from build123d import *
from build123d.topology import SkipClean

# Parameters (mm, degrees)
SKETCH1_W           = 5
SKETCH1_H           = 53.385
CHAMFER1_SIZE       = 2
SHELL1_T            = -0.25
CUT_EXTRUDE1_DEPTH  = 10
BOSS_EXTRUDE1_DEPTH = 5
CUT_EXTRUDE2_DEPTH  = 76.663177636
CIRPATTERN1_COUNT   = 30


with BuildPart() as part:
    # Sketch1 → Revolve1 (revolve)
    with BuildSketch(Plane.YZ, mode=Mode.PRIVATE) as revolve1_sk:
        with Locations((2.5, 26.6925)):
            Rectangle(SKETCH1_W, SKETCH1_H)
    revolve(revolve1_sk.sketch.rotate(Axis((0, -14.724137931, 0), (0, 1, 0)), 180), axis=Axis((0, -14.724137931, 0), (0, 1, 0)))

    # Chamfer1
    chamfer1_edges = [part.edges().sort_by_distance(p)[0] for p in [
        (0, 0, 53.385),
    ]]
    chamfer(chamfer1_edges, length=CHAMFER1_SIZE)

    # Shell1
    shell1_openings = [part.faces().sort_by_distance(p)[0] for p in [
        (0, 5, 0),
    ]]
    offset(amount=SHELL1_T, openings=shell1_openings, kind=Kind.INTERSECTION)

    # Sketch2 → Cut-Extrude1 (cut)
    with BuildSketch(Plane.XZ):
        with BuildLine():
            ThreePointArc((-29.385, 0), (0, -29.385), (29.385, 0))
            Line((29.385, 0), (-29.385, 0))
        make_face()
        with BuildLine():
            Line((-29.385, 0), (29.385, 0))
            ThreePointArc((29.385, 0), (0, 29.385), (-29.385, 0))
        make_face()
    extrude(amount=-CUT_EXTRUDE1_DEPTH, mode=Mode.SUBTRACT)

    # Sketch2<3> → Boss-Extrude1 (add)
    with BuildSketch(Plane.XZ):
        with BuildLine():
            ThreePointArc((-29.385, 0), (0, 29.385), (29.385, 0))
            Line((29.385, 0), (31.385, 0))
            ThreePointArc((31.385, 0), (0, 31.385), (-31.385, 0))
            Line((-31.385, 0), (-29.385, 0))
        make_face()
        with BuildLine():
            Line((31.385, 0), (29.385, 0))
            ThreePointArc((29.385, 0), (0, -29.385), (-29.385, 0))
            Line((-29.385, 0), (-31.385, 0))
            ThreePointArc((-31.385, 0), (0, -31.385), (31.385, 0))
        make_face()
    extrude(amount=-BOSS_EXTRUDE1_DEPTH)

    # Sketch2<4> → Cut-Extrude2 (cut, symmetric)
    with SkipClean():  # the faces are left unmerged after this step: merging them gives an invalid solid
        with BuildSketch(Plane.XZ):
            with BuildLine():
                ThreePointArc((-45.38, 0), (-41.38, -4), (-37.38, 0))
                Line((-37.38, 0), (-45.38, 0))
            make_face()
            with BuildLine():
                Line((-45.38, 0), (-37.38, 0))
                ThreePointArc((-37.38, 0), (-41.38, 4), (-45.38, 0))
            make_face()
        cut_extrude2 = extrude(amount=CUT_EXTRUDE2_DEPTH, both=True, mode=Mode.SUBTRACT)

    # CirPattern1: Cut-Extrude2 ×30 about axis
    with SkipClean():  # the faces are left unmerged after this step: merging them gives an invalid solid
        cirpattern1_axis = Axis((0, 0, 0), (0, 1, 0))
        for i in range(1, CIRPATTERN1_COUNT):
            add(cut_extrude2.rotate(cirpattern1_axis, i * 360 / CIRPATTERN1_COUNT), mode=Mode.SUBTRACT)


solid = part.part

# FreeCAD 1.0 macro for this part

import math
import FreeCAD as App
import Part
import Sketcher


def edges_at(feature, points):
    """Names of the edges that pass closest to the given points."""
    edges = feature.Shape.Edges
    near = lambda p: min(range(len(edges)), key=lambda i: edges[i].distToShape(Part.Vertex(*p))[0])
    return sorted({f"Edge{near(p) + 1}" for p in points})


def faces_at(feature, points):
    """Names of the faces that lie closest to the given points."""
    faces = feature.Shape.Faces
    near = lambda p: min(range(len(faces)), key=lambda i: faces[i].distToShape(Part.Vertex(*p))[0])
    return sorted({f"Face{near(p) + 1}" for p in points})

doc = App.newDocument("Part")
params = doc.addObject("Spreadsheet::Sheet", "Params")
for row, (alias, value) in enumerate([
    ("sketch1_width", "5 mm"),
    ("revolution_angle", "360 deg"),
    ("chamfer_size", "2 mm"),
    ("thickness_wall", "0.25 mm"),
    ("sketch2_diameter", "58.77 mm"),
    ("pocket1_length", "10 mm"),
    ("sketch3_diameter", "62.77 mm"),
    ("sketch3_diameter2", "58.77 mm"),
    ("pad1_length", "5 mm"),
    ("sketch4_radius", "4 mm"),
    ("pocket2_length", "153.326355 mm"),
], start=1):
    params.set(f"A{row}", alias)
    params.set(f"B{row}", "=" + value)
    params.setAlias(f"B{row}", alias)

body = doc.addObject("PartDesign::Body", "Body")

sketch1 = doc.addObject("Sketcher::SketchObject", "Sketch")
body.addObject(sketch1)
sketch1.AttachmentSupport = (doc.YZ_Plane, [""])
sketch1.MapMode = "FlatFace"
sketch1.addGeometry(Part.LineSegment(App.Vector(0, 53, 0), App.Vector(0, 0, 0)), False)
sketch1.addGeometry(Part.LineSegment(App.Vector(0, 0, 0), App.Vector(5, 0, 0)), False)
sketch1.addGeometry(Part.LineSegment(App.Vector(5, 0, 0), App.Vector(5, 53, 0)), False)
sketch1.addGeometry(Part.LineSegment(App.Vector(5, 53, 0), App.Vector(0, 53, 0)), False)
sketch1.addConstraint(Sketcher.Constraint("Coincident", 0, 2, 1, 1))
sketch1.addConstraint(Sketcher.Constraint("Coincident", 1, 2, 2, 1))
sketch1.addConstraint(Sketcher.Constraint("Coincident", 2, 2, 3, 1))
sketch1.addConstraint(Sketcher.Constraint("Coincident", 3, 2, 0, 1))
sketch1.addConstraint(Sketcher.Constraint("Vertical", 0))
sketch1.addConstraint(Sketcher.Constraint("Horizontal", 1))
sketch1.addConstraint(Sketcher.Constraint("Vertical", 2))
sketch1.addConstraint(Sketcher.Constraint("Horizontal", 3))
sketch1.addConstraint(Sketcher.Constraint("Coincident", 0, 2, -1, 1))
sketch1.addConstraint(Sketcher.Constraint("DistanceX", 1, 1, 1, 2, 5.0))
sketch1.addConstraint(Sketcher.Constraint("DistanceY", 0, 2, 0, 1, 53.385))
sketch1.setExpression("Constraints[9]", "Params.sketch1_width")
revolution = doc.addObject("PartDesign::Revolution", "Revolution")
body.addObject(revolution)
revolution.Profile = sketch1
revolution.ReferenceAxis = (sketch1, ["H_Axis"])
revolution.setExpression("Angle", "Params.revolution_angle")
doc.recompute()

chamfer = doc.addObject("PartDesign::Chamfer", "Chamfer")
body.addObject(chamfer)
chamfer.Base = (revolution, edges_at(revolution, [(0, 0, 53.385)]))
chamfer.setExpression("Size", "Params.chamfer_size")
doc.recompute()

thickness = doc.addObject("PartDesign::Thickness", "Thickness")
body.addObject(thickness)
thickness.Base = (chamfer, faces_at(chamfer, [(0, 5, 0)]))
thickness.setExpression("Value", "Params.thickness_wall")
thickness.Reversed = True
thickness.Join = "Intersection"

sketch2 = doc.addObject("Sketcher::SketchObject", "Sketch001")
body.addObject(sketch2)
sketch2.AttachmentSupport = (doc.XZ_Plane, [""])
sketch2.MapMode = "FlatFace"
sketch2.addGeometry(Part.Circle(App.Vector(0, 0, 0), App.Vector(0, 0, 1), 29), False)
sketch2.addConstraint(Sketcher.Constraint("Coincident", 0, 3, -1, 1))
sketch2.addConstraint(Sketcher.Constraint("Diameter", 0, 58.77))
sketch2.setExpression("Constraints[1]", "Params.sketch2_diameter")
pocket1 = doc.addObject("PartDesign::Pocket", "Pocket")
body.addObject(pocket1)
pocket1.Profile = sketch2
pocket1.setExpression("Length", "Params.pocket1_length")

sketch3 = doc.addObject("Sketcher::SketchObject", "Sketch002")
body.addObject(sketch3)
sketch3.AttachmentSupport = (doc.XZ_Plane, [""])
sketch3.MapMode = "FlatFace"
sketch3.addGeometry(Part.Circle(App.Vector(0, 0, 0), App.Vector(0, 0, 1), 31), False)
sketch3.addGeometry(Part.Circle(App.Vector(0, 0, 0), App.Vector(0, 0, 1), 29), False)
sketch3.addConstraint(Sketcher.Constraint("Coincident", 0, 3, -1, 1))
sketch3.addConstraint(Sketcher.Constraint("Coincident", 1, 3, -1, 1))
sketch3.addConstraint(Sketcher.Constraint("Diameter", 0, 62.77))
sketch3.addConstraint(Sketcher.Constraint("Diameter", 1, 58.77))
sketch3.setExpression("Constraints[2]", "Params.sketch3_diameter")
sketch3.setExpression("Constraints[3]", "Params.sketch3_diameter2")
pad1 = doc.addObject("PartDesign::Pad", "Pad")
body.addObject(pad1)
pad1.Profile = sketch3
pad1.setExpression("Length", "Params.pad1_length")
pad1.Reversed = True

sketch4 = doc.addObject("Sketcher::SketchObject", "Sketch003")
body.addObject(sketch4)
sketch4.AttachmentSupport = (doc.XZ_Plane, [""])
sketch4.MapMode = "FlatFace"
sketch4.addGeometry(Part.ArcOfCircle(Part.Circle(App.Vector(-41.4, 0, 0), App.Vector(0, 0, 1), 4), math.radians(180), math.radians(360)), False)
sketch4.addGeometry(Part.LineSegment(App.Vector(-37.4, 0, 0), App.Vector(-45.4, 0, 0)), False)
sketch4.addGeometry(Part.LineSegment(App.Vector(-45.4, 0, 0), App.Vector(-37.4, 0, 0)), False)
sketch4.addGeometry(Part.ArcOfCircle(Part.Circle(App.Vector(-41.4, 0, 0), App.Vector(0, 0, 1), 4), math.radians(0), math.radians(180)), False)
sketch4.addConstraint(Sketcher.Constraint("Coincident", 0, 1, 1, 2))
sketch4.addConstraint(Sketcher.Constraint("Coincident", 1, 1, 0, 2))
sketch4.addConstraint(Sketcher.Constraint("Coincident", 2, 1, 3, 2))
sketch4.addConstraint(Sketcher.Constraint("Coincident", 3, 1, 2, 2))
sketch4.addConstraint(Sketcher.Constraint("Horizontal", 1))
sketch4.addConstraint(Sketcher.Constraint("Horizontal", 2))
sketch4.addConstraint(Sketcher.Constraint("Coincident", 3, 3, 0, 3))
sketch4.addConstraint(Sketcher.Constraint("Coincident", 2, 1, 0, 1))
sketch4.addConstraint(Sketcher.Constraint("PointOnObject", 0, 3, -1))
sketch4.addConstraint(Sketcher.Constraint("PointOnObject", 0, 1, -1))
sketch4.addConstraint(Sketcher.Constraint("Radius", 0, 4.0))
sketch4.addConstraint(Sketcher.Constraint("DistanceX", 0, 3, -1, 1, 41.38))
sketch4.setExpression("Constraints[10]", "Params.sketch4_radius")
pocket2 = doc.addObject("PartDesign::Pocket", "Pocket001")
body.addObject(pocket2)
pocket2.Profile = sketch4
pocket2.setExpression("Length", "Params.pocket2_length")
pocket2.Midplane = True
doc.recompute()

polarpattern = doc.addObject("PartDesign::PolarPattern", "PolarPattern")
body.addObject(polarpattern)
polarpattern.Originals = [pocket2]
polarpattern.Axis = (doc.Y_Axis, [""])
polarpattern.Angle = 360
polarpattern.Occurrences = 30
body.Tip = polarpattern

doc.recompute()
